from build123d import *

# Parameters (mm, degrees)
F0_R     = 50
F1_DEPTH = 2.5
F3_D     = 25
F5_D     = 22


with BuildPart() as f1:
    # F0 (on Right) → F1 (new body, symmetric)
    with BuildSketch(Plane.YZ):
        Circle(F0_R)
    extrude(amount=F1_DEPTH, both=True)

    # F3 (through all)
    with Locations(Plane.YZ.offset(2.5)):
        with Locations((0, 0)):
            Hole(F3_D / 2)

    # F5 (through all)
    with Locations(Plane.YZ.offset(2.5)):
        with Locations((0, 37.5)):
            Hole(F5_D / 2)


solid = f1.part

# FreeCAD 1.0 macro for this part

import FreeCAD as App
import Part
import Sketcher

doc = App.newDocument("Part")
body = doc.addObject("PartDesign::Body", "Body")

sketch1 = doc.addObject("Sketcher::SketchObject", "Sketch")
body.addObject(sketch1)
sketch1.AttachmentSupport = (doc.YZ_Plane, [""])
sketch1.MapMode = "FlatFace"
sketch1.addGeometry(Part.Circle(App.Vector(0, 0, 0), App.Vector(0, 0, 1), 50), False)
sketch1.addConstraint(Sketcher.Constraint("Coincident", 0, 3, -1, 1))
sketch1.addConstraint(Sketcher.Constraint("Diameter", 0, 100.0))
pad1 = doc.addObject("PartDesign::Pad", "Pad")
body.addObject(pad1)
pad1.Profile = sketch1
pad1.Length = 5
pad1.Midplane = True

sketch2 = doc.addObject("Sketcher::SketchObject", "Sketch001")
body.addObject(sketch2)
sketch2.AttachmentSupport = (doc.YZ_Plane, [""])
sketch2.MapMode = "FlatFace"
sketch2.AttachmentOffset = App.Placement(App.Vector(0, 0, 2.5), App.Rotation())
sketch2.addGeometry(Part.Circle(App.Vector(0, 0, 0), App.Vector(0, 0, 1), 12.5), False)
sketch2.addConstraint(Sketcher.Constraint("Coincident", 0, 3, -1, 1))
sketch2.addConstraint(Sketcher.Constraint("Diameter", 0, 25.0))
doc.recompute()
hole = doc.addObject("PartDesign::Hole", "Hole")
body.addObject(hole)
hole.Profile = sketch2
hole.ThreadType = "None"
hole.Diameter = 25
hole.DepthType = "ThroughAll"

sketch3 = doc.addObject("Sketcher::SketchObject", "Sketch002")
body.addObject(sketch3)
sketch3.AttachmentSupport = (doc.YZ_Plane, [""])
sketch3.MapMode = "FlatFace"
sketch3.AttachmentOffset = App.Placement(App.Vector(0, 0, 2.5), App.Rotation())
sketch3.addGeometry(Part.Circle(App.Vector(0, 37.5, 0), App.Vector(0, 0, 1), 11), False)
sketch3.addConstraint(Sketcher.Constraint("PointOnObject", 0, 3, -2))
sketch3.addConstraint(Sketcher.Constraint("Diameter", 0, 22.0))
sketch3.addConstraint(Sketcher.Constraint("DistanceY", -1, 1, 0, 3, 37.5))
doc.recompute()
hole2 = doc.addObject("PartDesign::Hole", "Hole001")
body.addObject(hole2)
hole2.Profile = sketch3
hole2.ThreadType = "None"
hole2.Diameter = 22
hole2.DepthType = "ThroughAll"

doc.recompute()
